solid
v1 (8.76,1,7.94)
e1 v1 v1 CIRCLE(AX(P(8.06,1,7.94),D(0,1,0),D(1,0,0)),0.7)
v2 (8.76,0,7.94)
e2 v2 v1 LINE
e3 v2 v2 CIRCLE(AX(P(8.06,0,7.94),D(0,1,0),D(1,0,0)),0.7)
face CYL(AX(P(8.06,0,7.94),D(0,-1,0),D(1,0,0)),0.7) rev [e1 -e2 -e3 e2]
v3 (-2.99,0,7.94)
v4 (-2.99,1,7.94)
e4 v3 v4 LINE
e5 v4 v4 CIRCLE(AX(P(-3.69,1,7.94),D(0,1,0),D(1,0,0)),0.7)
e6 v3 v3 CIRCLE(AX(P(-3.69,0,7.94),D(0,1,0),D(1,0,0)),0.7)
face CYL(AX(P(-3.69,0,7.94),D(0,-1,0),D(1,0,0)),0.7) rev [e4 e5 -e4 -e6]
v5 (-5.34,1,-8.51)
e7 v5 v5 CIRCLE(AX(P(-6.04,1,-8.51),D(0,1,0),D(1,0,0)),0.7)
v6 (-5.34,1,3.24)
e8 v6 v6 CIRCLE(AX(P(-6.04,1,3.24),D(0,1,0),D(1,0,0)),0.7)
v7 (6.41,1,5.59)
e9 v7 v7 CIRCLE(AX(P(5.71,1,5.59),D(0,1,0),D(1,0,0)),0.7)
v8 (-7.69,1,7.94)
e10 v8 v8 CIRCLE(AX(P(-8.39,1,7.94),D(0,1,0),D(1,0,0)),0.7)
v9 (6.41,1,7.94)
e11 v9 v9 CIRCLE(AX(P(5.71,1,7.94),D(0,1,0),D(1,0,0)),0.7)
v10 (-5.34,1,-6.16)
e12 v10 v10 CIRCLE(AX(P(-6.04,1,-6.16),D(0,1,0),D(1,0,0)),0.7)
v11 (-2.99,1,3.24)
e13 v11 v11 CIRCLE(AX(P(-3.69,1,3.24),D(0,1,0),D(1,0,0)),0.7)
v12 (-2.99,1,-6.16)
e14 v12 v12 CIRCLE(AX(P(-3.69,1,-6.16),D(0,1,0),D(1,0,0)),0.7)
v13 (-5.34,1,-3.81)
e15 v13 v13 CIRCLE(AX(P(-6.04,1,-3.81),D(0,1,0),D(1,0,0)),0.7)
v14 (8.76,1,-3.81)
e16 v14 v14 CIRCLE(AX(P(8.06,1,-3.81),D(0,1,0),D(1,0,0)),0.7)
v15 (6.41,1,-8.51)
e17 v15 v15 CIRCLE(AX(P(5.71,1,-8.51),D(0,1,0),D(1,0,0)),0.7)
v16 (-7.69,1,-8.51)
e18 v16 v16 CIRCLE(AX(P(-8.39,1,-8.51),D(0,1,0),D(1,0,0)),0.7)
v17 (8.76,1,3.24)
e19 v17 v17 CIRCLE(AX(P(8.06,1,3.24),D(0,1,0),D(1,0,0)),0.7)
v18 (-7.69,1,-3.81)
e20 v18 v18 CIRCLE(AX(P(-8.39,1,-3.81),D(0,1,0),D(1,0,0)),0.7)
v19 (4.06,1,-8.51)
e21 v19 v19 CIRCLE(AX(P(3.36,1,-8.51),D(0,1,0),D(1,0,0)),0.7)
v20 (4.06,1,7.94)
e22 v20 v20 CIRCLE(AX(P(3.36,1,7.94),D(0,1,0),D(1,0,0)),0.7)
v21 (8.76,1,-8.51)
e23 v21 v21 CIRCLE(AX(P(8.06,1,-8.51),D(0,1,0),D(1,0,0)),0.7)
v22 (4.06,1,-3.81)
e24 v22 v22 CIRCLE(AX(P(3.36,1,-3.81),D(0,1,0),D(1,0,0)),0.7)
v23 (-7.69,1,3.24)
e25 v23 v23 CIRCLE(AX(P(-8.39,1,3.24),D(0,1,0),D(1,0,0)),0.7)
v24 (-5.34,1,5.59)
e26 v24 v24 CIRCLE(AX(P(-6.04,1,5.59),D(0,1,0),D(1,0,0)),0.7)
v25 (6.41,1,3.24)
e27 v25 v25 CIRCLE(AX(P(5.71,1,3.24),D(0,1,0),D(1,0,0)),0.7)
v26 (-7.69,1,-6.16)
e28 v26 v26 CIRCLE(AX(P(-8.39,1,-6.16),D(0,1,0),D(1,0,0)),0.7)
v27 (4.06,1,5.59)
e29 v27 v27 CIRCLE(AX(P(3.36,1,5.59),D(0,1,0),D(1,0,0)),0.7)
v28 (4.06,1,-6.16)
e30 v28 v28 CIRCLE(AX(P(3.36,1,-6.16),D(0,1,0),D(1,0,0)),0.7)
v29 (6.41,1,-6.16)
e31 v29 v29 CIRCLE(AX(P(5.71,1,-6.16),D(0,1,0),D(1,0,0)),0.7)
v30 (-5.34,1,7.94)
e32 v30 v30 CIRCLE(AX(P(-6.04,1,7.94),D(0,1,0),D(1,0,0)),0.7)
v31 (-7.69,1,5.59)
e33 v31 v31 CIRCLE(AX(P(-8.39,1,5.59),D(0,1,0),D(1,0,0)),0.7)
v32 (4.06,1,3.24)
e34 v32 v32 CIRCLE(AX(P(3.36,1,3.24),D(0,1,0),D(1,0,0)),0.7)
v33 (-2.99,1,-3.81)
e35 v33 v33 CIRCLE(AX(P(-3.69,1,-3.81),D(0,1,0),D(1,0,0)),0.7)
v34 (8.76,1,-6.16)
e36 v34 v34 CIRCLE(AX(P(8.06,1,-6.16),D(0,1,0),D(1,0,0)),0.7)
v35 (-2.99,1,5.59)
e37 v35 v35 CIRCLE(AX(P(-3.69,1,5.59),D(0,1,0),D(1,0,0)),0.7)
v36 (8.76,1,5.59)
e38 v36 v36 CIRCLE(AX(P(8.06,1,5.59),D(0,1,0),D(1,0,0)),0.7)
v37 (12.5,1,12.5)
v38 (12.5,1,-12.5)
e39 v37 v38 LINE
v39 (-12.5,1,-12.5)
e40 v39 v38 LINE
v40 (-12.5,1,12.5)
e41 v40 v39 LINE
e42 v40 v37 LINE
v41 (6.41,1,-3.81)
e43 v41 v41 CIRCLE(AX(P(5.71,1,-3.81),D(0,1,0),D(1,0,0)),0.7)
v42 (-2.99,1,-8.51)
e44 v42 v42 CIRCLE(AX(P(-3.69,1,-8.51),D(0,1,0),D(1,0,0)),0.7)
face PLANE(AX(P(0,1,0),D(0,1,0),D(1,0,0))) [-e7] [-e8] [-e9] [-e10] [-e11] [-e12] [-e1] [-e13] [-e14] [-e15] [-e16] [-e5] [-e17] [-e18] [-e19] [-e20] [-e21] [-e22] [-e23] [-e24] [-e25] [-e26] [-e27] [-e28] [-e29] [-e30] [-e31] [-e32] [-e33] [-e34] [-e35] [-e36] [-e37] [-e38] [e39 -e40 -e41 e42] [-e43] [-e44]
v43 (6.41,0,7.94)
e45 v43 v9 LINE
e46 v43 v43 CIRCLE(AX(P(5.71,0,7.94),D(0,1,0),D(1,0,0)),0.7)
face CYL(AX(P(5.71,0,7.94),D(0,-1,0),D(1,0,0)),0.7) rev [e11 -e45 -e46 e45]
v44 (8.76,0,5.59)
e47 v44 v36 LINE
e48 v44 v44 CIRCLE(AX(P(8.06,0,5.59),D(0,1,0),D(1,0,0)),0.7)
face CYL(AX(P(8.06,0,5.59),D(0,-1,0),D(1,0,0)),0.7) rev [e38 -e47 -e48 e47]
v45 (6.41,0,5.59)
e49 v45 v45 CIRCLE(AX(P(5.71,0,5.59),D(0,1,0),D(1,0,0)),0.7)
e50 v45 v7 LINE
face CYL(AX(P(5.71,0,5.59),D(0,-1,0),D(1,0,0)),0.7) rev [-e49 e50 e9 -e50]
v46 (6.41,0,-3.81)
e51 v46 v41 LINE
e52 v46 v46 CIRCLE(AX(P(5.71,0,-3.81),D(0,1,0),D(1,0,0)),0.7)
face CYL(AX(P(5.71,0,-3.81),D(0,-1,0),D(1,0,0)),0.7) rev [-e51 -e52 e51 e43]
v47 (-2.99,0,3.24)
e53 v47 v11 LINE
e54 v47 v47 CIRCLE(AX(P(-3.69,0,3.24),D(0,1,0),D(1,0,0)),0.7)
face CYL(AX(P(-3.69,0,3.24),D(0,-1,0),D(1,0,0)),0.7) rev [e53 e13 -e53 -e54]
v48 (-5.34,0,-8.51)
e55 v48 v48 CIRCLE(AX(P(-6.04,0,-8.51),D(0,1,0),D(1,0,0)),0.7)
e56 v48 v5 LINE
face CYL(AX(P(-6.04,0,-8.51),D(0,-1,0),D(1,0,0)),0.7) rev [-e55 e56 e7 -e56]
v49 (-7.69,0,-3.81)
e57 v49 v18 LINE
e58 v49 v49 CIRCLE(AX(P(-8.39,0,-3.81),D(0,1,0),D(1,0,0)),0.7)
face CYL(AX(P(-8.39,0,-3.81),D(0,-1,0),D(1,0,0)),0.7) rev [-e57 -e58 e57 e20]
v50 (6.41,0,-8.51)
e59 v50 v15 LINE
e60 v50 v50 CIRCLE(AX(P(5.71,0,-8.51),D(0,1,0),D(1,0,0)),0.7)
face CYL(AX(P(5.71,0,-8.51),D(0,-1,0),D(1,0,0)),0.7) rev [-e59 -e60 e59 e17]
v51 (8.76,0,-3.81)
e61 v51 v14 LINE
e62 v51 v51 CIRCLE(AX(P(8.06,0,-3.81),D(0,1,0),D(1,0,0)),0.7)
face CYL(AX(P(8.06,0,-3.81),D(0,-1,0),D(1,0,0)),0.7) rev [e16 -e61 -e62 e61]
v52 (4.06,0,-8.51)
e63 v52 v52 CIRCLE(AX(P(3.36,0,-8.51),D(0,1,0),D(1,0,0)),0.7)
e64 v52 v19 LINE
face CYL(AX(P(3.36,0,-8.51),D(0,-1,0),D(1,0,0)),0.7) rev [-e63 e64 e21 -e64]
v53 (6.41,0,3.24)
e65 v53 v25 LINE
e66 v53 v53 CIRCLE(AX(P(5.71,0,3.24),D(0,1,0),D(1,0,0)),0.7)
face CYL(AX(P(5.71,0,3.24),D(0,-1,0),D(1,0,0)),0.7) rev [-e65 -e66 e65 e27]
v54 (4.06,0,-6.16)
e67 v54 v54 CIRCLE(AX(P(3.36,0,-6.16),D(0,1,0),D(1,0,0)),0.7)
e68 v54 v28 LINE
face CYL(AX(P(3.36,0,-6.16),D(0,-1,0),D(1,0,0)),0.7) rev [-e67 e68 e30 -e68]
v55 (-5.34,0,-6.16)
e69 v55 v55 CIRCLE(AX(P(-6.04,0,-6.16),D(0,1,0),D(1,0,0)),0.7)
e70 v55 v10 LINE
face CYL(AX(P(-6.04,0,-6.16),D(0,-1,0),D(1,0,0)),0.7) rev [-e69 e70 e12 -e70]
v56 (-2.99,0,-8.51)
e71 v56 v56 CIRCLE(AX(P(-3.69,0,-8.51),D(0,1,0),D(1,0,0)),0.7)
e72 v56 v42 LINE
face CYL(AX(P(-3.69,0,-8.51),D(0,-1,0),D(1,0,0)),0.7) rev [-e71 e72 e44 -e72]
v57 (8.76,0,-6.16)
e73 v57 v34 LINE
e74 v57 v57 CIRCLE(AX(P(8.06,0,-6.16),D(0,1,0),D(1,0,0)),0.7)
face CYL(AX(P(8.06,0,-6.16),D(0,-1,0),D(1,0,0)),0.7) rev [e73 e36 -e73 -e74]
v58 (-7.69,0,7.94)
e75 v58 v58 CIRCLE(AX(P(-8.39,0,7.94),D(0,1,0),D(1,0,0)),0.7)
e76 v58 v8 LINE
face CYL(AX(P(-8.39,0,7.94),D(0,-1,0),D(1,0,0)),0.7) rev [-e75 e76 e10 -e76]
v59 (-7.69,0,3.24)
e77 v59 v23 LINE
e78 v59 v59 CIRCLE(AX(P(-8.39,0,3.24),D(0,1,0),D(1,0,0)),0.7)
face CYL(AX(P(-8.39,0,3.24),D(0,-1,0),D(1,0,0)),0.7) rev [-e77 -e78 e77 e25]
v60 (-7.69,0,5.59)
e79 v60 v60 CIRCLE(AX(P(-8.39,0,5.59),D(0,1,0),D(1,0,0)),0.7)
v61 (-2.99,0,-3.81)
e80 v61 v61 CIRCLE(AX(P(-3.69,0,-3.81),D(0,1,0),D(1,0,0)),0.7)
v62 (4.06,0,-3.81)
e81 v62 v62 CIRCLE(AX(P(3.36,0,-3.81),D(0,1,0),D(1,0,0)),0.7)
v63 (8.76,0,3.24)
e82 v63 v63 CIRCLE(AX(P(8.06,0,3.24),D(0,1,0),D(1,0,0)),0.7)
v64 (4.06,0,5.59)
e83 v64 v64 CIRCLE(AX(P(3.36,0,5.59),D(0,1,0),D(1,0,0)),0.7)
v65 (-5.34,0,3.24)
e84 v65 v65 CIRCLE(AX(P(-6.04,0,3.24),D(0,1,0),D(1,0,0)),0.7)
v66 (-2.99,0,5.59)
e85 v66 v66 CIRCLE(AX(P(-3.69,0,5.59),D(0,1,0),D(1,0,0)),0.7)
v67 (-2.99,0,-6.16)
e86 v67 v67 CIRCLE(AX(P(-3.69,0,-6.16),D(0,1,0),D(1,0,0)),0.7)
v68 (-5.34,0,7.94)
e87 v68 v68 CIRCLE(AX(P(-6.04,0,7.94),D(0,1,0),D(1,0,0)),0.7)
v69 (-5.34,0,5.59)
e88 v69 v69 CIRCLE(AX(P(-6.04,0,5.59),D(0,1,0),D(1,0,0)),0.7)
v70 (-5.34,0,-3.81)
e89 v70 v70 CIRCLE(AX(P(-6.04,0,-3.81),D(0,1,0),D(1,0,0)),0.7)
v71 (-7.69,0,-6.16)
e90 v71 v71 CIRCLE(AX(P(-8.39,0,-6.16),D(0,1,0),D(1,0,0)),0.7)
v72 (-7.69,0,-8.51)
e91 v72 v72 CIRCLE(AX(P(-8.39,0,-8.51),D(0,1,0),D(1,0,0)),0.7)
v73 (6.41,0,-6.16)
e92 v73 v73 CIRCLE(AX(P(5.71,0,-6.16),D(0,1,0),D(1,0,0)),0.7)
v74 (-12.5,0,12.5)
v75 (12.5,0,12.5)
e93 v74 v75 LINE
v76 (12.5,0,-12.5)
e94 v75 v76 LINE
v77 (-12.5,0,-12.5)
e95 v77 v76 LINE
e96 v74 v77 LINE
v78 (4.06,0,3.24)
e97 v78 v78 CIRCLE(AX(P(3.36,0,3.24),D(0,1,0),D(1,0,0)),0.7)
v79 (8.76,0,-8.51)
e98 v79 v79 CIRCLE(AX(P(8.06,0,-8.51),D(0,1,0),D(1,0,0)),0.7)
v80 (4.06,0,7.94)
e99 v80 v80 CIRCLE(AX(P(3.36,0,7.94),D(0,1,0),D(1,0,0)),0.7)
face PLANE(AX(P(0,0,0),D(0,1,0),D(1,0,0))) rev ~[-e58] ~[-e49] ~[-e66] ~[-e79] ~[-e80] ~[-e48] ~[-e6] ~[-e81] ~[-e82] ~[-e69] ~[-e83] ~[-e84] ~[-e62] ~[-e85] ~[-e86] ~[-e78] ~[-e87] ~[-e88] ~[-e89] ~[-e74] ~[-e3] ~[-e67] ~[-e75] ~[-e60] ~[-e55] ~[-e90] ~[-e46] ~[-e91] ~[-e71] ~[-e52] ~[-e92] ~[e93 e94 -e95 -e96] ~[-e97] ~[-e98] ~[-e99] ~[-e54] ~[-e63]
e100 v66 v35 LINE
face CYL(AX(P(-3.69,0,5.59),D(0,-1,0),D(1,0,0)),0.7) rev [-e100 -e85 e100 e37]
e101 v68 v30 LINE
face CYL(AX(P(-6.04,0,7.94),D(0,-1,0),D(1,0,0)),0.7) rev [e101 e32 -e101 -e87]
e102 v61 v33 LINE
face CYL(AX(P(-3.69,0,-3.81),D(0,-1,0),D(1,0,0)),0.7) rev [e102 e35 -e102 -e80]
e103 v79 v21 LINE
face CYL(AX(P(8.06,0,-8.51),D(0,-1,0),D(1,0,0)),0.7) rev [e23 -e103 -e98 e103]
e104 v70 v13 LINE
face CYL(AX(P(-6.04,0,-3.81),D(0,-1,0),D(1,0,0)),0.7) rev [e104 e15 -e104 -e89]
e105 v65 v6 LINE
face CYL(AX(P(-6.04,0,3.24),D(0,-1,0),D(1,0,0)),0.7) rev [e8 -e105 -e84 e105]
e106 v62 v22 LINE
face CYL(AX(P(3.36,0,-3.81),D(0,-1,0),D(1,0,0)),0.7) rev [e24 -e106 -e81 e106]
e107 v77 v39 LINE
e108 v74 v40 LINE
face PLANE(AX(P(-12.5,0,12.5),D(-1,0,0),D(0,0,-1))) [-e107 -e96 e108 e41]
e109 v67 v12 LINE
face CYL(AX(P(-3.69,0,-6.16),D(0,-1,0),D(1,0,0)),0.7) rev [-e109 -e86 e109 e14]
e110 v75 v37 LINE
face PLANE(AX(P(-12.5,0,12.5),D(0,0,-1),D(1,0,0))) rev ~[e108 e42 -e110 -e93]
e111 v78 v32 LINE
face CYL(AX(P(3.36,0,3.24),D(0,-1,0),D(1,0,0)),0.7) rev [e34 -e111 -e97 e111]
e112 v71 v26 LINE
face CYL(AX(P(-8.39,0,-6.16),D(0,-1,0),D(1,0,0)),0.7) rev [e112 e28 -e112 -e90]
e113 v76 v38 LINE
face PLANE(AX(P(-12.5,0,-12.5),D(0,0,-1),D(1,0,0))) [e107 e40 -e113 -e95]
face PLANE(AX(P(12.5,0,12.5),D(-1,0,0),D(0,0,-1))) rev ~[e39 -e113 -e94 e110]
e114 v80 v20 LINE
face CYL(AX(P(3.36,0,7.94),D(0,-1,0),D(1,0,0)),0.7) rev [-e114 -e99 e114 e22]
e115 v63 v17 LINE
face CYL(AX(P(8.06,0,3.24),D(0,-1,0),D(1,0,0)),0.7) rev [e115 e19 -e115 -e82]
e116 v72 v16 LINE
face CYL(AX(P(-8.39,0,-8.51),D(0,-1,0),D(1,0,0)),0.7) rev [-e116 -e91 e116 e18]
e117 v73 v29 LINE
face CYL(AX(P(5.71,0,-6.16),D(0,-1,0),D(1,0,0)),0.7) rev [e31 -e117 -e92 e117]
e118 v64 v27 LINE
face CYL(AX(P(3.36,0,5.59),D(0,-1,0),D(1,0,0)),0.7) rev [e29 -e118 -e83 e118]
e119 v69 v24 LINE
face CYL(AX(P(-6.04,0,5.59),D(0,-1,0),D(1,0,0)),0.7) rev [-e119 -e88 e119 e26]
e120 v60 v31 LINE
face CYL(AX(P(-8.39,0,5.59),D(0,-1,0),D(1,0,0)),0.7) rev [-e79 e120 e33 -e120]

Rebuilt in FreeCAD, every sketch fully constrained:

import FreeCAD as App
import Part
import Sketcher
from FreeCAD import Vector
Q = App.Units.Quantity


def add_polygon(sketch, points):
    """Adds a closed chain of lines whose ends are joined by coincident constraints."""
    first, n = sketch.GeometryCount, len(points)
    for a, b in zip(points, points[1:] + points[:1]):
        sketch.addGeometry(Part.LineSegment(App.Vector(*a, 0), App.Vector(*b, 0)), False)
    for i in range(n):
        sketch.addConstraint(Sketcher.Constraint("Coincident", first + i, 2, first + (i + 1) % n, 1))

doc = App.newDocument("Part")
body = doc.addObject("PartDesign::Body", "Body")

sketch1 = body.newObject("Sketcher::SketchObject", "Sketch")
sketch1.AttachmentSupport = (doc.getObject("XZ_Plane"), [""])
sketch1.MapMode = "FlatFace"
add_polygon(sketch1, [(-12.5, -12.5), (-12.5, 12.5), (12.5, 12.5), (12.5, -12.5)])
sketch1.addGeometry(Part.Circle(Vector(-8.39, 7.94, 0), Vector(0, 0, 1), 0.7), False)
sketch1.addGeometry(Part.Circle(Vector(-6.04, 7.94, 0), Vector(0, 0, 1), 0.7), False)
sketch1.addGeometry(Part.Circle(Vector(-8.39, 5.59, 0), Vector(0, 0, 1), 0.7), False)
sketch1.addGeometry(Part.Circle(Vector(-6.04, 5.59, 0), Vector(0, 0, 1), 0.7), False)
sketch1.addGeometry(Part.Circle(Vector(-3.69, 7.94, 0), Vector(0, 0, 1), 0.7), False)
sketch1.addGeometry(Part.Circle(Vector(-3.69, 5.59, 0), Vector(0, 0, 1), 0.7), False)
sketch1.addGeometry(Part.Circle(Vector(-8.39, 3.24, 0), Vector(0, 0, 1), 0.7), False)
sketch1.addGeometry(Part.Circle(Vector(-6.04, 3.24, 0), Vector(0, 0, 1), 0.7), False)
sketch1.addGeometry(Part.Circle(Vector(-3.69, 3.24, 0), Vector(0, 0, 1), 0.7), False)
sketch1.addGeometry(Part.Circle(Vector(3.36, 7.94, 0), Vector(0, 0, 1), 0.7), False)
sketch1.addGeometry(Part.Circle(Vector(3.36, 5.59, 0), Vector(0, 0, 1), 0.7), False)
sketch1.addGeometry(Part.Circle(Vector(5.71, 7.94, 0), Vector(0, 0, 1), 0.7), False)
sketch1.addGeometry(Part.Circle(Vector(8.06, 7.94, 0), Vector(0, 0, 1), 0.7), False)
sketch1.addGeometry(Part.Circle(Vector(5.71, 5.59, 0), Vector(0, 0, 1), 0.7), False)
sketch1.addGeometry(Part.Circle(Vector(8.06, 5.59, 0), Vector(0, 0, 1), 0.7), False)
sketch1.addGeometry(Part.Circle(Vector(3.36, 3.24, 0), Vector(0, 0, 1), 0.7), False)
sketch1.addGeometry(Part.Circle(Vector(5.71, 3.24, 0), Vector(0, 0, 1), 0.7), False)
sketch1.addGeometry(Part.Circle(Vector(8.06, 3.24, 0), Vector(0, 0, 1), 0.7), False)
sketch1.addGeometry(Part.Circle(Vector(-8.39, -3.81, 0), Vector(0, 0, 1), 0.7), False)
sketch1.addGeometry(Part.Circle(Vector(-6.04, -3.81, 0), Vector(0, 0, 1), 0.7), False)
sketch1.addGeometry(Part.Circle(Vector(-3.69, -3.81, 0), Vector(0, 0, 1), 0.7), False)
sketch1.addGeometry(Part.Circle(Vector(-8.39, -6.16, 0), Vector(0, 0, 1), 0.7), False)
sketch1.addGeometry(Part.Circle(Vector(-6.04, -6.16, 0), Vector(0, 0, 1), 0.7), False)
sketch1.addGeometry(Part.Circle(Vector(-8.39, -8.51, 0), Vector(0, 0, 1), 0.7), False)
sketch1.addGeometry(Part.Circle(Vector(-6.04, -8.51, 0), Vector(0, 0, 1), 0.7), False)
sketch1.addGeometry(Part.Circle(Vector(-3.69, -6.16, 0), Vector(0, 0, 1), 0.7), False)
sketch1.addGeometry(Part.Circle(Vector(-3.69, -8.51, 0), Vector(0, 0, 1), 0.7), False)
sketch1.addGeometry(Part.Circle(Vector(3.36, -3.81, 0), Vector(0, 0, 1), 0.7), False)
sketch1.addGeometry(Part.Circle(Vector(5.71, -3.81, 0), Vector(0, 0, 1), 0.7), False)
sketch1.addGeometry(Part.Circle(Vector(8.06, -3.81, 0), Vector(0, 0, 1), 0.7), False)
sketch1.addGeometry(Part.Circle(Vector(3.36, -6.16, 0), Vector(0, 0, 1), 0.7), False)
sketch1.addGeometry(Part.Circle(Vector(3.36, -8.51, 0), Vector(0, 0, 1), 0.7), False)
sketch1.addGeometry(Part.Circle(Vector(5.71, -6.16, 0), Vector(0, 0, 1), 0.7), False)
sketch1.addGeometry(Part.Circle(Vector(8.06, -6.16, 0), Vector(0, 0, 1), 0.7), False)
sketch1.addGeometry(Part.Circle(Vector(5.71, -8.51, 0), Vector(0, 0, 1), 0.7), False)
sketch1.addGeometry(Part.Circle(Vector(8.06, -8.51, 0), Vector(0, 0, 1), 0.7), False)
sketch1.addConstraint([
    Sketcher.Constraint("Vertical", 0),
    Sketcher.Constraint("Horizontal", 1),
    Sketcher.Constraint("Vertical", 2),
    Sketcher.Constraint("Horizontal", 3),
    Sketcher.Constraint("Equal", 4, 5),
    Sketcher.Constraint("Equal", 5, 6),
    Sketcher.Constraint("Equal", 6, 7),
    Sketcher.Constraint("Equal", 7, 8),
    Sketcher.Constraint("Equal", 8, 9),
    Sketcher.Constraint("Equal", 9, 10),
    Sketcher.Constraint("Equal", 10, 11),
    Sketcher.Constraint("Equal", 11, 12),
    Sketcher.Constraint("Equal", 12, 13),
    Sketcher.Constraint("Equal", 13, 14),
    Sketcher.Constraint("Equal", 14, 15),
    Sketcher.Constraint("Equal", 15, 16),
    Sketcher.Constraint("Equal", 16, 17),
    Sketcher.Constraint("Equal", 17, 18),
    Sketcher.Constraint("Equal", 18, 19),
    Sketcher.Constraint("Equal", 19, 20),
    Sketcher.Constraint("Equal", 20, 21),
    Sketcher.Constraint("Equal", 21, 22),
    Sketcher.Constraint("Equal", 22, 23),
    Sketcher.Constraint("Equal", 23, 24),
    Sketcher.Constraint("Equal", 24, 25),
    Sketcher.Constraint("Equal", 25, 26),
    Sketcher.Constraint("Equal", 26, 27),
    Sketcher.Constraint("Equal", 27, 28),
    Sketcher.Constraint("Equal", 28, 29),
    Sketcher.Constraint("Equal", 29, 30),
    Sketcher.Constraint("Equal", 30, 31),
    Sketcher.Constraint("Equal", 31, 32),
    Sketcher.Constraint("Equal", 32, 33),
    Sketcher.Constraint("Equal", 33, 34),
    Sketcher.Constraint("Equal", 34, 35),
    Sketcher.Constraint("Equal", 35, 36),
    Sketcher.Constraint("Equal", 36, 37),
    Sketcher.Constraint("Equal", 37, 38),
    Sketcher.Constraint("Equal", 38, 39),
    Sketcher.Constraint("Symmetric", 0, 2, 2, 2, -1, 1),
    Sketcher.Constraint("Horizontal", 4, 3, 5, 3),
    Sketcher.Constraint("Horizontal", 6, 3, 7, 3),
    Sketcher.Constraint("Horizontal", 5, 3, 8, 3),
    Sketcher.Constraint("Horizontal", 7, 3, 9, 3),
    Sketcher.Constraint("Horizontal", 10, 3, 11, 3),
    Sketcher.Constraint("Horizontal", 11, 3, 12, 3),
    Sketcher.Constraint("Horizontal", 8, 3, 13, 3),
    Sketcher.Constraint("Horizontal", 9, 3, 14, 3),
    Sketcher.Constraint("Horizontal", 13, 3, 15, 3),
    Sketcher.Constraint("Horizontal", 15, 3, 16, 3),
    Sketcher.Constraint("Horizontal", 14, 3, 17, 3),
    Sketcher.Constraint("Horizontal", 17, 3, 18, 3),
    Sketcher.Constraint("Horizontal", 12, 3, 19, 3),
    Sketcher.Constraint("Horizontal", 19, 3, 20, 3),
    Sketcher.Constraint("Horizontal", 20, 3, 21, 3),
    Sketcher.Constraint("Horizontal", 22, 3, 23, 3),
    Sketcher.Constraint("Horizontal", 23, 3, 24, 3),
    Sketcher.Constraint("Horizontal", 25, 3, 26, 3),
    Sketcher.Constraint("Horizontal", 27, 3, 28, 3),
    Sketcher.Constraint("Horizontal", 26, 3, 29, 3),
    Sketcher.Constraint("Horizontal", 28, 3, 30, 3),
    Sketcher.Constraint("Horizontal", 24, 3, 31, 3),
    Sketcher.Constraint("Horizontal", 31, 3, 32, 3),
    Sketcher.Constraint("Horizontal", 32, 3, 33, 3),
    Sketcher.Constraint("Horizontal", 29, 3, 34, 3),
    Sketcher.Constraint("Horizontal", 30, 3, 35, 3),
    Sketcher.Constraint("Horizontal", 34, 3, 36, 3),
    Sketcher.Constraint("Horizontal", 36, 3, 37, 3),
    Sketcher.Constraint("Horizontal", 35, 3, 38, 3),
    Sketcher.Constraint("Horizontal", 38, 3, 39, 3),
    Sketcher.Constraint("Vertical", 4, 3, 6, 3),
    Sketcher.Constraint("Vertical", 5, 3, 7, 3),
    Sketcher.Constraint("Vertical", 8, 3, 9, 3),
    Sketcher.Constraint("Vertical", 6, 3, 10, 3),
    Sketcher.Constraint("Vertical", 7, 3, 11, 3),
    Sketcher.Constraint("Vertical", 9, 3, 12, 3),
    Sketcher.Constraint("Vertical", 13, 3, 14, 3),
    Sketcher.Constraint("Vertical", 15, 3, 17, 3),
    Sketcher.Constraint("Vertical", 16, 3, 18, 3),
    Sketcher.Constraint("Vertical", 14, 3, 19, 3),
    Sketcher.Constraint("Vertical", 17, 3, 20, 3),
    Sketcher.Constraint("Vertical", 18, 3, 21, 3),
    Sketcher.Constraint("Vertical", 10, 3, 22, 3),
    Sketcher.Constraint("Vertical", 11, 3, 23, 3),
    Sketcher.Constraint("Vertical", 12, 3, 24, 3),
    Sketcher.Constraint("Vertical", 22, 3, 25, 3),
    Sketcher.Constraint("Vertical", 23, 3, 26, 3),
    Sketcher.Constraint("Vertical", 25, 3, 27, 3),
    Sketcher.Constraint("Vertical", 26, 3, 28, 3),
    Sketcher.Constraint("Vertical", 24, 3, 29, 3),
    Sketcher.Constraint("Vertical", 29, 3, 30, 3),
    Sketcher.Constraint("Vertical", 19, 3, 31, 3),
    Sketcher.Constraint("Vertical", 20, 3, 32, 3),
    Sketcher.Constraint("Vertical", 21, 3, 33, 3),
    Sketcher.Constraint("Vertical", 31, 3, 34, 3),
    Sketcher.Constraint("Vertical", 34, 3, 35, 3),
    Sketcher.Constraint("Vertical", 32, 3, 36, 3),
    Sketcher.Constraint("Vertical", 33, 3, 37, 3),
    Sketcher.Constraint("Vertical", 36, 3, 38, 3),
    Sketcher.Constraint("Vertical", 37, 3, 39, 3),
    Sketcher.Constraint("Equal", 3, 0),
    Sketcher.Constraint("Diameter", 4, Q("1.4 mm")),
    Sketcher.Constraint("DistanceX", 1, 1, 1, 2, Q("25 mm")),
    Sketcher.Constraint("DistanceX", 4, 3, 8, 3, Q("4.7 mm")),
    Sketcher.Constraint("DistanceY", 10, 3, 4, 3, Q("4.7 mm")),
    Sketcher.Constraint("DistanceX", 5, 3, 13, 3, Q("9.4 mm")),
    Sketcher.Constraint("DistanceX", 8, 3, 15, 3, Q("9.4 mm")),
    Sketcher.Constraint("DistanceX", 13, 3, 16, 3, Q("4.7 mm")),
    Sketcher.Constraint("DistanceY", 22, 3, 6, 3, Q("9.4 mm")),
    Sketcher.Constraint("DistanceY", 25, 3, 10, 3, Q("9.4 mm")),
    Sketcher.Constraint("DistanceY", 27, 3, 22, 3, Q("4.7 mm")),
    Sketcher.Constraint("DistanceX", 4, 3, -1, 1, Q("8.39 mm")),
    Sketcher.Constraint("DistanceY", -1, 1, 4, 3, Q("7.94 mm")),
    Sketcher.Constraint("DistanceX", 5, 3, -1, 1, Q("6.04 mm")),
    Sketcher.Constraint("DistanceY", -1, 1, 6, 3, Q("5.59 mm")),
])
pad1 = body.newObject("PartDesign::Pad", "Pad")
pad1.Profile = sketch1
pad1.Length = 1
pad1.Reversed = True

doc.recompute()
